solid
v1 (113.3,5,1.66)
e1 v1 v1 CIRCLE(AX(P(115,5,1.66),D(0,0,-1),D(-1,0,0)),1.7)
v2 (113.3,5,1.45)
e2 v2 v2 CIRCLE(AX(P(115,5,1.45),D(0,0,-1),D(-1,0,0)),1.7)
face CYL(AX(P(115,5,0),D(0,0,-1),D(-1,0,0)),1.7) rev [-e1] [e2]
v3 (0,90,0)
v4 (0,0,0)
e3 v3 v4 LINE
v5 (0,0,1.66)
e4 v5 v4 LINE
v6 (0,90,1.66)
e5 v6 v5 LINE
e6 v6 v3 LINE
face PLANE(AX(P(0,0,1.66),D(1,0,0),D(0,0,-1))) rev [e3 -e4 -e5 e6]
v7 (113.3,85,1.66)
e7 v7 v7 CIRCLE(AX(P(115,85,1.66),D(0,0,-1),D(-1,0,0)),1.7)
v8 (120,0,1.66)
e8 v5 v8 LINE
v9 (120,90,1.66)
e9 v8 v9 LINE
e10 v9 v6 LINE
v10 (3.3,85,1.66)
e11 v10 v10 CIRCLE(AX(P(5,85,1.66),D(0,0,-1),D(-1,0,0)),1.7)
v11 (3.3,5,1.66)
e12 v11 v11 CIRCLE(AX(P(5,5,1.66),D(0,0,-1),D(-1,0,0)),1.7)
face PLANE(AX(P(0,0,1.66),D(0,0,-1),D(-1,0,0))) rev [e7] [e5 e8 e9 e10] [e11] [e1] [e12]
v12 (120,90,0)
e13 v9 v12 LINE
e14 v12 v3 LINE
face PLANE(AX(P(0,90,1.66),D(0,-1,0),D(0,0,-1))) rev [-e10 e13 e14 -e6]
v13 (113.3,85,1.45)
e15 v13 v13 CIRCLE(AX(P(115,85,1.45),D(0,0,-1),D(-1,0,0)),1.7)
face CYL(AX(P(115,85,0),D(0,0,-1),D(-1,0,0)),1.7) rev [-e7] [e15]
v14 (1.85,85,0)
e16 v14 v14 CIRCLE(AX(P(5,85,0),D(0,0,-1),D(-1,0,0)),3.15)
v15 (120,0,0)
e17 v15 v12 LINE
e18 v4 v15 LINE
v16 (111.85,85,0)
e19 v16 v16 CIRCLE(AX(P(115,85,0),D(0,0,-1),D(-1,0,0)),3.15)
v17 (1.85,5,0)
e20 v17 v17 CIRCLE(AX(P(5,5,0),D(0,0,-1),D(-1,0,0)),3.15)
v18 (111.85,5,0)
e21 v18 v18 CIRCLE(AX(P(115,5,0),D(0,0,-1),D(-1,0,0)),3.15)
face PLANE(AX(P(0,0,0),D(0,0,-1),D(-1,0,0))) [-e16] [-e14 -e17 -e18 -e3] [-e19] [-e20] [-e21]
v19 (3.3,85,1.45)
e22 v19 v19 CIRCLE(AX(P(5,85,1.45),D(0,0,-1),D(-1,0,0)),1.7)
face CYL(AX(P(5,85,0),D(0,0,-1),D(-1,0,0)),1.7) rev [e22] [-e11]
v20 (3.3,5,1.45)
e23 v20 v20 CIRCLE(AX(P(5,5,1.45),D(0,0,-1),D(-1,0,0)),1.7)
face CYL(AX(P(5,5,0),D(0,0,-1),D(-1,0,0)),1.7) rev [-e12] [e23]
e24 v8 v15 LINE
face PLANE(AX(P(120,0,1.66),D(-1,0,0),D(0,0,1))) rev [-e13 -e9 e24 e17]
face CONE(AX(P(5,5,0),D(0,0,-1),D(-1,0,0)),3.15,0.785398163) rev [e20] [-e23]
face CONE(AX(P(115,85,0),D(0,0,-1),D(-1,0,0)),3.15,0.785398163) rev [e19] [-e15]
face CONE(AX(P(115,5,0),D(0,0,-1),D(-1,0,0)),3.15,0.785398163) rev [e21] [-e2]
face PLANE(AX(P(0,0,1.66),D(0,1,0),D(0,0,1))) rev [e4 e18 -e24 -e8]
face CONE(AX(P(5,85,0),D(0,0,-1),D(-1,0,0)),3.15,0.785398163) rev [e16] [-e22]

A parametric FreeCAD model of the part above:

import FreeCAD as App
import Part
import Sketcher
Q = App.Units.Quantity

doc = App.newDocument("Part")
params = doc.addObject("Spreadsheet::Sheet", "Params")
for row, (alias, value) in enumerate([
    ("sketch1_width", "120 mm"),
    ("sketch1_height", "90 mm"),
    ("pad1_length", "1.66 mm"),
    ("sketch2_diameter", "3.4 mm"),
    ("hole_diameter", "3.4 mm"),
    ("hole_depth", "30 mm"),
    ("hole_csink_diameter", "6.3 mm"),
], start=1):
    params.set(f"A{row}", alias)
    params.set(f"B{row}", "=" + value)
    params.setAlias(f"B{row}", alias)

body = doc.addObject("PartDesign::Body", "Body")

sketch1 = body.newObject("Sketcher::SketchObject", "Sketch")
sketch1.AttachmentSupport = (doc.getObject("XY_Plane"), [""])
sketch1.MapMode = "FlatFace"
sketch1.addGeometry(Part.LineSegment(App.Vector(0, 90, 0), App.Vector(0, 0, 0)), False)
sketch1.addGeometry(Part.LineSegment(App.Vector(0, 0, 0), App.Vector(120, 0, 0)), False)
sketch1.addGeometry(Part.LineSegment(App.Vector(120, 0, 0), App.Vector(120, 90, 0)), False)
sketch1.addGeometry(Part.LineSegment(App.Vector(120, 90, 0), App.Vector(0, 90, 0)), False)
sketch1.addConstraint(Sketcher.Constraint("Coincident", 0, 2, 1, 1))
sketch1.addConstraint(Sketcher.Constraint("Coincident", 1, 2, 2, 1))
sketch1.addConstraint(Sketcher.Constraint("Coincident", 2, 2, 3, 1))
sketch1.addConstraint(Sketcher.Constraint("Coincident", 3, 2, 0, 1))
sketch1.addConstraint(Sketcher.Constraint("Vertical", 0))
sketch1.addConstraint(Sketcher.Constraint("Horizontal", 1))
sketch1.addConstraint(Sketcher.Constraint("Vertical", 2))
sketch1.addConstraint(Sketcher.Constraint("Horizontal", 3))
sketch1.addConstraint(Sketcher.Constraint("Coincident", 0, 2, -1, 1))
sketch1.addConstraint(Sketcher.Constraint("DistanceX", 1, 1, 1, 2, Q("120 mm")))
sketch1.addConstraint(Sketcher.Constraint("DistanceY", 0, 2, 0, 1, Q("90 mm")))
sketch1.setExpression("Constraints[9]", "Params.sketch1_width")
sketch1.setExpression("Constraints[10]", "Params.sketch1_height")
pad1 = body.newObject("PartDesign::Pad", "Pad")
pad1.Profile = sketch1
pad1.setExpression("Length", "Params.pad1_length")

sketch2 = body.newObject("Sketcher::SketchObject", "Sketch001")
sketch2.AttachmentSupport = (doc.getObject("XY_Plane"), [""])
sketch2.MapMode = "FlatFace"
sketch2.addGeometry(Part.Circle(App.Vector(5, 5, 0), App.Vector(0, 0, 1), 1.7), False)
sketch2.addGeometry(Part.Circle(App.Vector(5, 85, 0), App.Vector(0, 0, 1), 1.7), False)
sketch2.addGeometry(Part.Circle(App.Vector(115, 85, 0), App.Vector(0, 0, 1), 1.7), False)
sketch2.addGeometry(Part.Circle(App.Vector(115, 5, 0), App.Vector(0, 0, 1), 1.7), False)
sketch2.addConstraint(Sketcher.Constraint("Equal", 0, 1))
sketch2.addConstraint(Sketcher.Constraint("Equal", 1, 2))
sketch2.addConstraint(Sketcher.Constraint("Equal", 2, 3))
sketch2.addConstraint(Sketcher.Constraint("Horizontal", 1, 3, 2, 3))
sketch2.addConstraint(Sketcher.Constraint("Horizontal", 0, 3, 3, 3))
sketch2.addConstraint(Sketcher.Constraint("Vertical", 0, 3, 1, 3))
sketch2.addConstraint(Sketcher.Constraint("Vertical", 2, 3, 3, 3))
sketch2.addConstraint(Sketcher.Constraint("Diameter", 0, Q("3.4 mm")))
sketch2.addConstraint(Sketcher.Constraint("DistanceX", -1, 1, 0, 3, Q("5 mm")))
sketch2.addConstraint(Sketcher.Constraint("DistanceY", -1, 1, 0, 3, Q("5 mm")))
sketch2.addConstraint(Sketcher.Constraint("DistanceY", -1, 1, 1, 3, Q("85 mm")))
sketch2.addConstraint(Sketcher.Constraint("DistanceX", -1, 1, 2, 3, Q("115 mm")))
sketch2.setExpression("Constraints[7]", "Params.sketch2_diameter")
doc.recompute()
hole = body.newObject("PartDesign::Hole", "Hole")
hole.Profile = sketch2
hole.ThreadType = "None"
hole.setExpression("Diameter", "Params.hole_diameter")
hole.DepthType = "Dimension"
hole.setExpression("Depth", "Params.hole_depth")
hole.DrillPoint = "Angled"
hole.DrillPointAngle = 118
hole.HoleCutType = "Countersink"
hole.setExpression("HoleCutDiameter", "Params.hole_csink_diameter")
hole.HoleCutCountersinkAngle = 90
hole.Reversed = True

doc.recompute()
